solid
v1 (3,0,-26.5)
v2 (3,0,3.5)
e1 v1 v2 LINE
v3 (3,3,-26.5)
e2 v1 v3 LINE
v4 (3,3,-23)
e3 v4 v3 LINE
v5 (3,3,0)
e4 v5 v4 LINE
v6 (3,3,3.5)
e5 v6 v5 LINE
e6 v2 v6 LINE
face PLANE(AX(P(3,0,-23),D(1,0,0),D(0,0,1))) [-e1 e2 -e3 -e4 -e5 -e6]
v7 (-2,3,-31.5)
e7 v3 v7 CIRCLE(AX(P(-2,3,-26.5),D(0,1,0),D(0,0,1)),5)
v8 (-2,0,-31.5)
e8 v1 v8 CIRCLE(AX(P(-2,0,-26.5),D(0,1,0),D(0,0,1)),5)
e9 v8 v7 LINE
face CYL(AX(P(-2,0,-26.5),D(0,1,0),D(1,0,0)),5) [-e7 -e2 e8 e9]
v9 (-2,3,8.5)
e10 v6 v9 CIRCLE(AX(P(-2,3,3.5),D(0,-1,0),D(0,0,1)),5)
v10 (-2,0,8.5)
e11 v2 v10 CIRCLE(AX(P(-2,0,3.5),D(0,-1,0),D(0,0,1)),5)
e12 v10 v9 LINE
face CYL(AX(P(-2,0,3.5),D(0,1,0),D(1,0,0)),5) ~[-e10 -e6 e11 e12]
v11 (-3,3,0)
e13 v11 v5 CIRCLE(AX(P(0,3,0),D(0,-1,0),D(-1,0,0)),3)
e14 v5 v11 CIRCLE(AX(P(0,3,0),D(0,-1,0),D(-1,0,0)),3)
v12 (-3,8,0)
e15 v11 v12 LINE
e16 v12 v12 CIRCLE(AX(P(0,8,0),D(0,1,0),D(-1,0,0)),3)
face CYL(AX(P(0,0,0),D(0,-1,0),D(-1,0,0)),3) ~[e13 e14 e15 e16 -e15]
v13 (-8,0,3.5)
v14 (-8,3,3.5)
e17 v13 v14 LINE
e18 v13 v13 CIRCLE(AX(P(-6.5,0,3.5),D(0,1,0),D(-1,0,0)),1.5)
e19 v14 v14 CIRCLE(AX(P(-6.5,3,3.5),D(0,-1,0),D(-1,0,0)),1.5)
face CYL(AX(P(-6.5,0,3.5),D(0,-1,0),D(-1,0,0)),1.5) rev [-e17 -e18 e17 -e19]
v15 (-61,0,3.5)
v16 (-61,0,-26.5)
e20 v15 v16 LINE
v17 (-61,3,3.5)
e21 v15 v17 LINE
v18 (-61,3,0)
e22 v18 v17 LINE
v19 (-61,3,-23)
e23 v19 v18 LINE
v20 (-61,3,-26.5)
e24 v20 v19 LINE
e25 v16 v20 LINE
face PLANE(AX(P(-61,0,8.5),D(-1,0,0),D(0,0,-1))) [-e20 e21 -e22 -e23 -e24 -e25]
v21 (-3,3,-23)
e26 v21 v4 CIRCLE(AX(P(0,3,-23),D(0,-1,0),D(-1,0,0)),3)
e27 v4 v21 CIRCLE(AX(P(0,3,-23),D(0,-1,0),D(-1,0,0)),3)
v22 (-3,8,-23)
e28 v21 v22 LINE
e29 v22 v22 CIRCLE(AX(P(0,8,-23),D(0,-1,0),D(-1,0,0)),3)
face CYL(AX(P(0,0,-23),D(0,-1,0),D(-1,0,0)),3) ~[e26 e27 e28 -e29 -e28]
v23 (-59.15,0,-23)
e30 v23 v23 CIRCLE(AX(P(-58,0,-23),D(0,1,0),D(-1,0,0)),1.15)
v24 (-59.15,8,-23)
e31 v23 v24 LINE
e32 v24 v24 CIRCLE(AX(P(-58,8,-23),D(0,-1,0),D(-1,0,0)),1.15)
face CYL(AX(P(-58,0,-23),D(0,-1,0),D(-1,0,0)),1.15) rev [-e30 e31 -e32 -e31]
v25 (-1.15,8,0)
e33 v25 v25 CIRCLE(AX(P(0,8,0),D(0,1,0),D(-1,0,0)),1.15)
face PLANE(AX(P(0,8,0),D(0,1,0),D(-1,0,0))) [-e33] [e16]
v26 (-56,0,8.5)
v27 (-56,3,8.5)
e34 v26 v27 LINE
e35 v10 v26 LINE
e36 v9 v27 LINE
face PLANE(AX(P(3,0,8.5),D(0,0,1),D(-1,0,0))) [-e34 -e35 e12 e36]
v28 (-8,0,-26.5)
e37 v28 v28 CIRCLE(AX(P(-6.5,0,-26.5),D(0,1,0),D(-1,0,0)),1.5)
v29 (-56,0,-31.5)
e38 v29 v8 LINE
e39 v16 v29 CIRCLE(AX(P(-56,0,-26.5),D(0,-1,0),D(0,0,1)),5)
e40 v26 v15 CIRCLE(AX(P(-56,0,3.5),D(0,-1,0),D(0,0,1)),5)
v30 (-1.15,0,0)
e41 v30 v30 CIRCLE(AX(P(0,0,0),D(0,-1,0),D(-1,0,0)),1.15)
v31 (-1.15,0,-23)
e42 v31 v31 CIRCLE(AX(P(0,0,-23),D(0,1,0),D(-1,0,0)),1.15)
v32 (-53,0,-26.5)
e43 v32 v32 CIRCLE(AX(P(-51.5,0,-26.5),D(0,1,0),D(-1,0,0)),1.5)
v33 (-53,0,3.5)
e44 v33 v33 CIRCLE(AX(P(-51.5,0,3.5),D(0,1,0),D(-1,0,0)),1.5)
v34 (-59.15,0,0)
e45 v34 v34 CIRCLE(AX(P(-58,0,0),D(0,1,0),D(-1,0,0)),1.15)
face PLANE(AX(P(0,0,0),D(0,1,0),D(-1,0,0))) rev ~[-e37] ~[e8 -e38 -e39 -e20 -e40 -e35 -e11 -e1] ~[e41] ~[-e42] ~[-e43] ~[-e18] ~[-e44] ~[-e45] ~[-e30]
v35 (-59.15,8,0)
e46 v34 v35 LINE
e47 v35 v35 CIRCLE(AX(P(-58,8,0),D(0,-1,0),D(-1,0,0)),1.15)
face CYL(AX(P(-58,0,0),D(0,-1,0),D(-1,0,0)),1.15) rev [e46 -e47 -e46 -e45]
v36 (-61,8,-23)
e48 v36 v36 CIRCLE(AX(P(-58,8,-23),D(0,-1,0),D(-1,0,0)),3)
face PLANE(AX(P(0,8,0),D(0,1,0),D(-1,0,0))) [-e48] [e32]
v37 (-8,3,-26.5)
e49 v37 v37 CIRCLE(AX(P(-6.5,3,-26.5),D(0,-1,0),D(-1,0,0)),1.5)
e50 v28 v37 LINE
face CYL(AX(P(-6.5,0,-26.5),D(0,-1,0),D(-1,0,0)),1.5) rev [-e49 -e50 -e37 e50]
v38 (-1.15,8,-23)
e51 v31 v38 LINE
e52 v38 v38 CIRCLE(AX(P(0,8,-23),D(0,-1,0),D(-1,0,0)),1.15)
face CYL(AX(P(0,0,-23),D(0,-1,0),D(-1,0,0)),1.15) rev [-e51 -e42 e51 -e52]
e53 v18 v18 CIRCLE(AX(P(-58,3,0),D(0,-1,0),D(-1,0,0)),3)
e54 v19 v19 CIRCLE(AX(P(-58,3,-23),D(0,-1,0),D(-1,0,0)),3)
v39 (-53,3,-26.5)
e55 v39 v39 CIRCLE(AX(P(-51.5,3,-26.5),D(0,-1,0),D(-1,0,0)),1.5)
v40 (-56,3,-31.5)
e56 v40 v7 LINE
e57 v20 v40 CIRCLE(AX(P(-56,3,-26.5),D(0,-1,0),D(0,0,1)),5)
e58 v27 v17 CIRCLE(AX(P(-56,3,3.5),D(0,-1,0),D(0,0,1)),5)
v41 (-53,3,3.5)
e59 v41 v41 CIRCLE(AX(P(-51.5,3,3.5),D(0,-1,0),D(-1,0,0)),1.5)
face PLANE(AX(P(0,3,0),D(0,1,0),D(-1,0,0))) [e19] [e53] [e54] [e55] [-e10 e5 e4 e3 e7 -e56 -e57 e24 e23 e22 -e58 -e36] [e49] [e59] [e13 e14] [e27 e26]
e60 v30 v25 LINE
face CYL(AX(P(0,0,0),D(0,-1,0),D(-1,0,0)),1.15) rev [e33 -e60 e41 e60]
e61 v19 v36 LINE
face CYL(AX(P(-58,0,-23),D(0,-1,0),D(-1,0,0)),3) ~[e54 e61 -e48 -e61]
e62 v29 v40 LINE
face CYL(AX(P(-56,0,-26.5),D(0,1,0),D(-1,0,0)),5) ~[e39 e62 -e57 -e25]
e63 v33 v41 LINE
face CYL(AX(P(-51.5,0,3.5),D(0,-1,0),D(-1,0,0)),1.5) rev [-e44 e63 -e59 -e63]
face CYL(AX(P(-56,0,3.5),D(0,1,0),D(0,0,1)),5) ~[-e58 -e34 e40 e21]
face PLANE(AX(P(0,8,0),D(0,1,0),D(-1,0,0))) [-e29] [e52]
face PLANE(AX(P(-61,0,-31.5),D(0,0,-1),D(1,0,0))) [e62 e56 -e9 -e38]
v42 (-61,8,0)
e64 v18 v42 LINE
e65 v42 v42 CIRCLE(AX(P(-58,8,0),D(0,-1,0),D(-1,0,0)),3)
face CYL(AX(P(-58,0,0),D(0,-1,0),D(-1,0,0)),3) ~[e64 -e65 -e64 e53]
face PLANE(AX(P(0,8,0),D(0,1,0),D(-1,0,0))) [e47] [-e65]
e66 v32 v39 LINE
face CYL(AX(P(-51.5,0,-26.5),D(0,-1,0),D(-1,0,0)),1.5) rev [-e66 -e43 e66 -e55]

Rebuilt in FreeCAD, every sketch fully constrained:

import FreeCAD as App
import Part
import Sketcher
Q = App.Units.Quantity


def edges_at(feature, points):
    """Names of the edges that pass closest to the given points."""
    edges = feature.Shape.Edges
    near = lambda p: min(range(len(edges)), key=lambda i: edges[i].distToShape(Part.Vertex(*p))[0])
    return sorted({f"Edge{near(p) + 1}" for p in points})

doc = App.newDocument("Part")
body = doc.addObject("PartDesign::Body", "Body")

sketch1 = body.newObject("Sketcher::SketchObject", "Sketch")
sketch1.AttachmentSupport = (doc.getObject("XZ_Plane"), [""])
sketch1.MapMode = "FlatFace"
sketch1.addGeometry(Part.LineSegment(App.Vector(3, -31.5, 0), App.Vector(-61, -31.5, 0)), False)
sketch1.addGeometry(Part.LineSegment(App.Vector(-61, -31.5, 0), App.Vector(-61, 8.5, 0)), False)
sketch1.addGeometry(Part.LineSegment(App.Vector(-61, 8.5, 0), App.Vector(3, 8.5, 0)), False)
sketch1.addGeometry(Part.LineSegment(App.Vector(3, 8.5, 0), App.Vector(3, -31.5, 0)), False)
sketch1.addGeometry(Part.Circle(App.Vector(0, 0, 0), App.Vector(0, 0, 1), 1.1), False)
sketch1.addGeometry(Part.Circle(App.Vector(-51.5, 3.5, 0), App.Vector(0, 0, 1), 1.5), False)
sketch1.addGeometry(Part.Circle(App.Vector(-6.5, 3.5, 0), App.Vector(0, 0, 1), 1.5), False)
sketch1.addGeometry(Part.Circle(App.Vector(0, -23, 0), App.Vector(0, 0, 1), 1.1), False)
sketch1.addGeometry(Part.Circle(App.Vector(-58, 0, 0), App.Vector(0, 0, 1), 1.1), False)
sketch1.addGeometry(Part.Circle(App.Vector(-6.5, -26.5, 0), App.Vector(0, 0, 1), 1.5), False)
sketch1.addGeometry(Part.Circle(App.Vector(-51.5, -26.5, 0), App.Vector(0, 0, 1), 1.5), False)
sketch1.addGeometry(Part.Circle(App.Vector(-58, -23, 0), App.Vector(0, 0, 1), 1.1), False)
sketch1.addConstraint(Sketcher.Constraint("Coincident", 0, 2, 1, 1))
sketch1.addConstraint(Sketcher.Constraint("Coincident", 1, 2, 2, 1))
sketch1.addConstraint(Sketcher.Constraint("Coincident", 2, 2, 3, 1))
sketch1.addConstraint(Sketcher.Constraint("Coincident", 3, 2, 0, 1))
sketch1.addConstraint(Sketcher.Constraint("Horizontal", 0))
sketch1.addConstraint(Sketcher.Constraint("Vertical", 1))
sketch1.addConstraint(Sketcher.Constraint("Horizontal", 2))
sketch1.addConstraint(Sketcher.Constraint("Vertical", 3))
sketch1.addConstraint(Sketcher.Constraint("Coincident", 4, 3, -1, 1))
sketch1.addConstraint(Sketcher.Constraint("Equal", 5, 6))
sketch1.addConstraint(Sketcher.Constraint("Equal", 4, 7))
sketch1.addConstraint(Sketcher.Constraint("Equal", 7, 8))
sketch1.addConstraint(Sketcher.Constraint("Equal", 6, 9))
sketch1.addConstraint(Sketcher.Constraint("Equal", 9, 10))
sketch1.addConstraint(Sketcher.Constraint("Equal", 8, 11))
sketch1.addConstraint(Sketcher.Constraint("PointOnObject", 7, 3, -2))
sketch1.addConstraint(Sketcher.Constraint("PointOnObject", 8, 3, -1))
sketch1.addConstraint(Sketcher.Constraint("Horizontal", 5, 3, 6, 3))
sketch1.addConstraint(Sketcher.Constraint("Horizontal", 9, 3, 10, 3))
sketch1.addConstraint(Sketcher.Constraint("Horizontal", 7, 3, 11, 3))
sketch1.addConstraint(Sketcher.Constraint("Vertical", 6, 3, 9, 3))
sketch1.addConstraint(Sketcher.Constraint("Vertical", 5, 3, 10, 3))
sketch1.addConstraint(Sketcher.Constraint("Vertical", 8, 3, 11, 3))
sketch1.addConstraint(Sketcher.Constraint("Diameter", 5, Q("3 mm")))
sketch1.addConstraint(Sketcher.Constraint("Diameter", 4, Q("2.3 mm")))
sketch1.addConstraint(Sketcher.Constraint("DistanceY", 7, 3, -1, 1, Q("23 mm")))
sketch1.addConstraint(Sketcher.Constraint("DistanceX", 8, 3, -1, 1, Q("58 mm")))
sketch1.addConstraint(Sketcher.Constraint("DistanceX", -1, 1, 2, 2, Q("3 mm")))
sketch1.addConstraint(Sketcher.Constraint("DistanceX", 5, 3, 6, 3, Q("45 mm")))
sketch1.addConstraint(Sketcher.Constraint("DistanceY", 9, 3, 6, 3, Q("30 mm")))
sketch1.addConstraint(Sketcher.Constraint("DistanceX", 0, 2, 11, 3, Q("3 mm")))
sketch1.addConstraint(Sketcher.Constraint("DistanceY", 0, 2, 10, 3, Q("5 mm")))
sketch1.addConstraint(Sketcher.Constraint("DistanceY", 5, 3, 1, 2, Q("5 mm")))
sketch1.addConstraint(Sketcher.Constraint("DistanceY", -1, 1, 5, 3, Q("3.5 mm")))
sketch1.addConstraint(Sketcher.Constraint("DistanceX", 6, 3, -1, 1, Q("6.5 mm")))
pad1 = body.newObject("PartDesign::Pad", "Pad")
pad1.Profile = sketch1
pad1.Length = 3
pad1.Reversed = True

sketch2 = body.newObject("Sketcher::SketchObject", "Sketch001")
sketch2.AttachmentSupport = (doc.getObject("XZ_Plane"), [""])
sketch2.MapMode = "FlatFace"
sketch2.addGeometry(Part.Circle(App.Vector(0, 0, 0), App.Vector(0, 0, 1), 3), False)
sketch2.addGeometry(Part.Circle(App.Vector(0, 0, 0), App.Vector(0, 0, 1), 1.1), False)
sketch2.addGeometry(Part.Circle(App.Vector(0, -23, 0), App.Vector(0, 0, 1), 3), False)
sketch2.addGeometry(Part.Circle(App.Vector(0, -23, 0), App.Vector(0, 0, 1), 1.1), False)
sketch2.addGeometry(Part.Circle(App.Vector(-58, 0, 0), App.Vector(0, 0, 1), 3), False)
sketch2.addGeometry(Part.Circle(App.Vector(-58, 0, 0), App.Vector(0, 0, 1), 1.1), False)
sketch2.addGeometry(Part.Circle(App.Vector(-58, -23, 0), App.Vector(0, 0, 1), 3), False)
sketch2.addGeometry(Part.Circle(App.Vector(-58, -23, 0), App.Vector(0, 0, 1), 1.1), False)
sketch2.addConstraint(Sketcher.Constraint("Coincident", 0, 3, -1, 1))
sketch2.addConstraint(Sketcher.Constraint("Coincident", 1, 3, -1, 1))
sketch2.addConstraint(Sketcher.Constraint("Coincident", 3, 3, 2, 3))
sketch2.addConstraint(Sketcher.Constraint("Coincident", 5, 3, 4, 3))
sketch2.addConstraint(Sketcher.Constraint("Coincident", 7, 3, 6, 3))
sketch2.addConstraint(Sketcher.Constraint("Equal", 0, 2))
sketch2.addConstraint(Sketcher.Constraint("Equal", 1, 3))
sketch2.addConstraint(Sketcher.Constraint("Equal", 2, 4))
sketch2.addConstraint(Sketcher.Constraint("Equal", 3, 5))
sketch2.addConstraint(Sketcher.Constraint("Equal", 4, 6))
sketch2.addConstraint(Sketcher.Constraint("Equal", 5, 7))
sketch2.addConstraint(Sketcher.Constraint("PointOnObject", 2, 3, -2))
sketch2.addConstraint(Sketcher.Constraint("PointOnObject", 4, 3, -1))
sketch2.addConstraint(Sketcher.Constraint("Horizontal", 3, 3, 6, 3))
sketch2.addConstraint(Sketcher.Constraint("Vertical", 5, 3, 6, 3))
sketch2.addConstraint(Sketcher.Constraint("Diameter", 0, Q("6 mm")))
sketch2.addConstraint(Sketcher.Constraint("Diameter", 1, Q("2.3 mm")))
sketch2.addConstraint(Sketcher.Constraint("DistanceY", 2, 3, -1, 1, Q("23 mm")))
sketch2.addConstraint(Sketcher.Constraint("DistanceX", 4, 3, -1, 1, Q("58 mm")))
pad2 = body.newObject("PartDesign::Pad", "Pad001")
pad2.Profile = sketch2
pad2.Length = 8
pad2.Reversed = True
doc.recompute()

fillet = body.newObject("PartDesign::Fillet", "Fillet")
fillet.Base = (pad2, edges_at(pad2, [
    (-61, 1.5, 8.5),
    (3, 1.5, 8.5),
    (3, 1.5, -31.5),
    (-61, 1.5, -31.5),
]))
fillet.Radius = 5

doc.recompute()
